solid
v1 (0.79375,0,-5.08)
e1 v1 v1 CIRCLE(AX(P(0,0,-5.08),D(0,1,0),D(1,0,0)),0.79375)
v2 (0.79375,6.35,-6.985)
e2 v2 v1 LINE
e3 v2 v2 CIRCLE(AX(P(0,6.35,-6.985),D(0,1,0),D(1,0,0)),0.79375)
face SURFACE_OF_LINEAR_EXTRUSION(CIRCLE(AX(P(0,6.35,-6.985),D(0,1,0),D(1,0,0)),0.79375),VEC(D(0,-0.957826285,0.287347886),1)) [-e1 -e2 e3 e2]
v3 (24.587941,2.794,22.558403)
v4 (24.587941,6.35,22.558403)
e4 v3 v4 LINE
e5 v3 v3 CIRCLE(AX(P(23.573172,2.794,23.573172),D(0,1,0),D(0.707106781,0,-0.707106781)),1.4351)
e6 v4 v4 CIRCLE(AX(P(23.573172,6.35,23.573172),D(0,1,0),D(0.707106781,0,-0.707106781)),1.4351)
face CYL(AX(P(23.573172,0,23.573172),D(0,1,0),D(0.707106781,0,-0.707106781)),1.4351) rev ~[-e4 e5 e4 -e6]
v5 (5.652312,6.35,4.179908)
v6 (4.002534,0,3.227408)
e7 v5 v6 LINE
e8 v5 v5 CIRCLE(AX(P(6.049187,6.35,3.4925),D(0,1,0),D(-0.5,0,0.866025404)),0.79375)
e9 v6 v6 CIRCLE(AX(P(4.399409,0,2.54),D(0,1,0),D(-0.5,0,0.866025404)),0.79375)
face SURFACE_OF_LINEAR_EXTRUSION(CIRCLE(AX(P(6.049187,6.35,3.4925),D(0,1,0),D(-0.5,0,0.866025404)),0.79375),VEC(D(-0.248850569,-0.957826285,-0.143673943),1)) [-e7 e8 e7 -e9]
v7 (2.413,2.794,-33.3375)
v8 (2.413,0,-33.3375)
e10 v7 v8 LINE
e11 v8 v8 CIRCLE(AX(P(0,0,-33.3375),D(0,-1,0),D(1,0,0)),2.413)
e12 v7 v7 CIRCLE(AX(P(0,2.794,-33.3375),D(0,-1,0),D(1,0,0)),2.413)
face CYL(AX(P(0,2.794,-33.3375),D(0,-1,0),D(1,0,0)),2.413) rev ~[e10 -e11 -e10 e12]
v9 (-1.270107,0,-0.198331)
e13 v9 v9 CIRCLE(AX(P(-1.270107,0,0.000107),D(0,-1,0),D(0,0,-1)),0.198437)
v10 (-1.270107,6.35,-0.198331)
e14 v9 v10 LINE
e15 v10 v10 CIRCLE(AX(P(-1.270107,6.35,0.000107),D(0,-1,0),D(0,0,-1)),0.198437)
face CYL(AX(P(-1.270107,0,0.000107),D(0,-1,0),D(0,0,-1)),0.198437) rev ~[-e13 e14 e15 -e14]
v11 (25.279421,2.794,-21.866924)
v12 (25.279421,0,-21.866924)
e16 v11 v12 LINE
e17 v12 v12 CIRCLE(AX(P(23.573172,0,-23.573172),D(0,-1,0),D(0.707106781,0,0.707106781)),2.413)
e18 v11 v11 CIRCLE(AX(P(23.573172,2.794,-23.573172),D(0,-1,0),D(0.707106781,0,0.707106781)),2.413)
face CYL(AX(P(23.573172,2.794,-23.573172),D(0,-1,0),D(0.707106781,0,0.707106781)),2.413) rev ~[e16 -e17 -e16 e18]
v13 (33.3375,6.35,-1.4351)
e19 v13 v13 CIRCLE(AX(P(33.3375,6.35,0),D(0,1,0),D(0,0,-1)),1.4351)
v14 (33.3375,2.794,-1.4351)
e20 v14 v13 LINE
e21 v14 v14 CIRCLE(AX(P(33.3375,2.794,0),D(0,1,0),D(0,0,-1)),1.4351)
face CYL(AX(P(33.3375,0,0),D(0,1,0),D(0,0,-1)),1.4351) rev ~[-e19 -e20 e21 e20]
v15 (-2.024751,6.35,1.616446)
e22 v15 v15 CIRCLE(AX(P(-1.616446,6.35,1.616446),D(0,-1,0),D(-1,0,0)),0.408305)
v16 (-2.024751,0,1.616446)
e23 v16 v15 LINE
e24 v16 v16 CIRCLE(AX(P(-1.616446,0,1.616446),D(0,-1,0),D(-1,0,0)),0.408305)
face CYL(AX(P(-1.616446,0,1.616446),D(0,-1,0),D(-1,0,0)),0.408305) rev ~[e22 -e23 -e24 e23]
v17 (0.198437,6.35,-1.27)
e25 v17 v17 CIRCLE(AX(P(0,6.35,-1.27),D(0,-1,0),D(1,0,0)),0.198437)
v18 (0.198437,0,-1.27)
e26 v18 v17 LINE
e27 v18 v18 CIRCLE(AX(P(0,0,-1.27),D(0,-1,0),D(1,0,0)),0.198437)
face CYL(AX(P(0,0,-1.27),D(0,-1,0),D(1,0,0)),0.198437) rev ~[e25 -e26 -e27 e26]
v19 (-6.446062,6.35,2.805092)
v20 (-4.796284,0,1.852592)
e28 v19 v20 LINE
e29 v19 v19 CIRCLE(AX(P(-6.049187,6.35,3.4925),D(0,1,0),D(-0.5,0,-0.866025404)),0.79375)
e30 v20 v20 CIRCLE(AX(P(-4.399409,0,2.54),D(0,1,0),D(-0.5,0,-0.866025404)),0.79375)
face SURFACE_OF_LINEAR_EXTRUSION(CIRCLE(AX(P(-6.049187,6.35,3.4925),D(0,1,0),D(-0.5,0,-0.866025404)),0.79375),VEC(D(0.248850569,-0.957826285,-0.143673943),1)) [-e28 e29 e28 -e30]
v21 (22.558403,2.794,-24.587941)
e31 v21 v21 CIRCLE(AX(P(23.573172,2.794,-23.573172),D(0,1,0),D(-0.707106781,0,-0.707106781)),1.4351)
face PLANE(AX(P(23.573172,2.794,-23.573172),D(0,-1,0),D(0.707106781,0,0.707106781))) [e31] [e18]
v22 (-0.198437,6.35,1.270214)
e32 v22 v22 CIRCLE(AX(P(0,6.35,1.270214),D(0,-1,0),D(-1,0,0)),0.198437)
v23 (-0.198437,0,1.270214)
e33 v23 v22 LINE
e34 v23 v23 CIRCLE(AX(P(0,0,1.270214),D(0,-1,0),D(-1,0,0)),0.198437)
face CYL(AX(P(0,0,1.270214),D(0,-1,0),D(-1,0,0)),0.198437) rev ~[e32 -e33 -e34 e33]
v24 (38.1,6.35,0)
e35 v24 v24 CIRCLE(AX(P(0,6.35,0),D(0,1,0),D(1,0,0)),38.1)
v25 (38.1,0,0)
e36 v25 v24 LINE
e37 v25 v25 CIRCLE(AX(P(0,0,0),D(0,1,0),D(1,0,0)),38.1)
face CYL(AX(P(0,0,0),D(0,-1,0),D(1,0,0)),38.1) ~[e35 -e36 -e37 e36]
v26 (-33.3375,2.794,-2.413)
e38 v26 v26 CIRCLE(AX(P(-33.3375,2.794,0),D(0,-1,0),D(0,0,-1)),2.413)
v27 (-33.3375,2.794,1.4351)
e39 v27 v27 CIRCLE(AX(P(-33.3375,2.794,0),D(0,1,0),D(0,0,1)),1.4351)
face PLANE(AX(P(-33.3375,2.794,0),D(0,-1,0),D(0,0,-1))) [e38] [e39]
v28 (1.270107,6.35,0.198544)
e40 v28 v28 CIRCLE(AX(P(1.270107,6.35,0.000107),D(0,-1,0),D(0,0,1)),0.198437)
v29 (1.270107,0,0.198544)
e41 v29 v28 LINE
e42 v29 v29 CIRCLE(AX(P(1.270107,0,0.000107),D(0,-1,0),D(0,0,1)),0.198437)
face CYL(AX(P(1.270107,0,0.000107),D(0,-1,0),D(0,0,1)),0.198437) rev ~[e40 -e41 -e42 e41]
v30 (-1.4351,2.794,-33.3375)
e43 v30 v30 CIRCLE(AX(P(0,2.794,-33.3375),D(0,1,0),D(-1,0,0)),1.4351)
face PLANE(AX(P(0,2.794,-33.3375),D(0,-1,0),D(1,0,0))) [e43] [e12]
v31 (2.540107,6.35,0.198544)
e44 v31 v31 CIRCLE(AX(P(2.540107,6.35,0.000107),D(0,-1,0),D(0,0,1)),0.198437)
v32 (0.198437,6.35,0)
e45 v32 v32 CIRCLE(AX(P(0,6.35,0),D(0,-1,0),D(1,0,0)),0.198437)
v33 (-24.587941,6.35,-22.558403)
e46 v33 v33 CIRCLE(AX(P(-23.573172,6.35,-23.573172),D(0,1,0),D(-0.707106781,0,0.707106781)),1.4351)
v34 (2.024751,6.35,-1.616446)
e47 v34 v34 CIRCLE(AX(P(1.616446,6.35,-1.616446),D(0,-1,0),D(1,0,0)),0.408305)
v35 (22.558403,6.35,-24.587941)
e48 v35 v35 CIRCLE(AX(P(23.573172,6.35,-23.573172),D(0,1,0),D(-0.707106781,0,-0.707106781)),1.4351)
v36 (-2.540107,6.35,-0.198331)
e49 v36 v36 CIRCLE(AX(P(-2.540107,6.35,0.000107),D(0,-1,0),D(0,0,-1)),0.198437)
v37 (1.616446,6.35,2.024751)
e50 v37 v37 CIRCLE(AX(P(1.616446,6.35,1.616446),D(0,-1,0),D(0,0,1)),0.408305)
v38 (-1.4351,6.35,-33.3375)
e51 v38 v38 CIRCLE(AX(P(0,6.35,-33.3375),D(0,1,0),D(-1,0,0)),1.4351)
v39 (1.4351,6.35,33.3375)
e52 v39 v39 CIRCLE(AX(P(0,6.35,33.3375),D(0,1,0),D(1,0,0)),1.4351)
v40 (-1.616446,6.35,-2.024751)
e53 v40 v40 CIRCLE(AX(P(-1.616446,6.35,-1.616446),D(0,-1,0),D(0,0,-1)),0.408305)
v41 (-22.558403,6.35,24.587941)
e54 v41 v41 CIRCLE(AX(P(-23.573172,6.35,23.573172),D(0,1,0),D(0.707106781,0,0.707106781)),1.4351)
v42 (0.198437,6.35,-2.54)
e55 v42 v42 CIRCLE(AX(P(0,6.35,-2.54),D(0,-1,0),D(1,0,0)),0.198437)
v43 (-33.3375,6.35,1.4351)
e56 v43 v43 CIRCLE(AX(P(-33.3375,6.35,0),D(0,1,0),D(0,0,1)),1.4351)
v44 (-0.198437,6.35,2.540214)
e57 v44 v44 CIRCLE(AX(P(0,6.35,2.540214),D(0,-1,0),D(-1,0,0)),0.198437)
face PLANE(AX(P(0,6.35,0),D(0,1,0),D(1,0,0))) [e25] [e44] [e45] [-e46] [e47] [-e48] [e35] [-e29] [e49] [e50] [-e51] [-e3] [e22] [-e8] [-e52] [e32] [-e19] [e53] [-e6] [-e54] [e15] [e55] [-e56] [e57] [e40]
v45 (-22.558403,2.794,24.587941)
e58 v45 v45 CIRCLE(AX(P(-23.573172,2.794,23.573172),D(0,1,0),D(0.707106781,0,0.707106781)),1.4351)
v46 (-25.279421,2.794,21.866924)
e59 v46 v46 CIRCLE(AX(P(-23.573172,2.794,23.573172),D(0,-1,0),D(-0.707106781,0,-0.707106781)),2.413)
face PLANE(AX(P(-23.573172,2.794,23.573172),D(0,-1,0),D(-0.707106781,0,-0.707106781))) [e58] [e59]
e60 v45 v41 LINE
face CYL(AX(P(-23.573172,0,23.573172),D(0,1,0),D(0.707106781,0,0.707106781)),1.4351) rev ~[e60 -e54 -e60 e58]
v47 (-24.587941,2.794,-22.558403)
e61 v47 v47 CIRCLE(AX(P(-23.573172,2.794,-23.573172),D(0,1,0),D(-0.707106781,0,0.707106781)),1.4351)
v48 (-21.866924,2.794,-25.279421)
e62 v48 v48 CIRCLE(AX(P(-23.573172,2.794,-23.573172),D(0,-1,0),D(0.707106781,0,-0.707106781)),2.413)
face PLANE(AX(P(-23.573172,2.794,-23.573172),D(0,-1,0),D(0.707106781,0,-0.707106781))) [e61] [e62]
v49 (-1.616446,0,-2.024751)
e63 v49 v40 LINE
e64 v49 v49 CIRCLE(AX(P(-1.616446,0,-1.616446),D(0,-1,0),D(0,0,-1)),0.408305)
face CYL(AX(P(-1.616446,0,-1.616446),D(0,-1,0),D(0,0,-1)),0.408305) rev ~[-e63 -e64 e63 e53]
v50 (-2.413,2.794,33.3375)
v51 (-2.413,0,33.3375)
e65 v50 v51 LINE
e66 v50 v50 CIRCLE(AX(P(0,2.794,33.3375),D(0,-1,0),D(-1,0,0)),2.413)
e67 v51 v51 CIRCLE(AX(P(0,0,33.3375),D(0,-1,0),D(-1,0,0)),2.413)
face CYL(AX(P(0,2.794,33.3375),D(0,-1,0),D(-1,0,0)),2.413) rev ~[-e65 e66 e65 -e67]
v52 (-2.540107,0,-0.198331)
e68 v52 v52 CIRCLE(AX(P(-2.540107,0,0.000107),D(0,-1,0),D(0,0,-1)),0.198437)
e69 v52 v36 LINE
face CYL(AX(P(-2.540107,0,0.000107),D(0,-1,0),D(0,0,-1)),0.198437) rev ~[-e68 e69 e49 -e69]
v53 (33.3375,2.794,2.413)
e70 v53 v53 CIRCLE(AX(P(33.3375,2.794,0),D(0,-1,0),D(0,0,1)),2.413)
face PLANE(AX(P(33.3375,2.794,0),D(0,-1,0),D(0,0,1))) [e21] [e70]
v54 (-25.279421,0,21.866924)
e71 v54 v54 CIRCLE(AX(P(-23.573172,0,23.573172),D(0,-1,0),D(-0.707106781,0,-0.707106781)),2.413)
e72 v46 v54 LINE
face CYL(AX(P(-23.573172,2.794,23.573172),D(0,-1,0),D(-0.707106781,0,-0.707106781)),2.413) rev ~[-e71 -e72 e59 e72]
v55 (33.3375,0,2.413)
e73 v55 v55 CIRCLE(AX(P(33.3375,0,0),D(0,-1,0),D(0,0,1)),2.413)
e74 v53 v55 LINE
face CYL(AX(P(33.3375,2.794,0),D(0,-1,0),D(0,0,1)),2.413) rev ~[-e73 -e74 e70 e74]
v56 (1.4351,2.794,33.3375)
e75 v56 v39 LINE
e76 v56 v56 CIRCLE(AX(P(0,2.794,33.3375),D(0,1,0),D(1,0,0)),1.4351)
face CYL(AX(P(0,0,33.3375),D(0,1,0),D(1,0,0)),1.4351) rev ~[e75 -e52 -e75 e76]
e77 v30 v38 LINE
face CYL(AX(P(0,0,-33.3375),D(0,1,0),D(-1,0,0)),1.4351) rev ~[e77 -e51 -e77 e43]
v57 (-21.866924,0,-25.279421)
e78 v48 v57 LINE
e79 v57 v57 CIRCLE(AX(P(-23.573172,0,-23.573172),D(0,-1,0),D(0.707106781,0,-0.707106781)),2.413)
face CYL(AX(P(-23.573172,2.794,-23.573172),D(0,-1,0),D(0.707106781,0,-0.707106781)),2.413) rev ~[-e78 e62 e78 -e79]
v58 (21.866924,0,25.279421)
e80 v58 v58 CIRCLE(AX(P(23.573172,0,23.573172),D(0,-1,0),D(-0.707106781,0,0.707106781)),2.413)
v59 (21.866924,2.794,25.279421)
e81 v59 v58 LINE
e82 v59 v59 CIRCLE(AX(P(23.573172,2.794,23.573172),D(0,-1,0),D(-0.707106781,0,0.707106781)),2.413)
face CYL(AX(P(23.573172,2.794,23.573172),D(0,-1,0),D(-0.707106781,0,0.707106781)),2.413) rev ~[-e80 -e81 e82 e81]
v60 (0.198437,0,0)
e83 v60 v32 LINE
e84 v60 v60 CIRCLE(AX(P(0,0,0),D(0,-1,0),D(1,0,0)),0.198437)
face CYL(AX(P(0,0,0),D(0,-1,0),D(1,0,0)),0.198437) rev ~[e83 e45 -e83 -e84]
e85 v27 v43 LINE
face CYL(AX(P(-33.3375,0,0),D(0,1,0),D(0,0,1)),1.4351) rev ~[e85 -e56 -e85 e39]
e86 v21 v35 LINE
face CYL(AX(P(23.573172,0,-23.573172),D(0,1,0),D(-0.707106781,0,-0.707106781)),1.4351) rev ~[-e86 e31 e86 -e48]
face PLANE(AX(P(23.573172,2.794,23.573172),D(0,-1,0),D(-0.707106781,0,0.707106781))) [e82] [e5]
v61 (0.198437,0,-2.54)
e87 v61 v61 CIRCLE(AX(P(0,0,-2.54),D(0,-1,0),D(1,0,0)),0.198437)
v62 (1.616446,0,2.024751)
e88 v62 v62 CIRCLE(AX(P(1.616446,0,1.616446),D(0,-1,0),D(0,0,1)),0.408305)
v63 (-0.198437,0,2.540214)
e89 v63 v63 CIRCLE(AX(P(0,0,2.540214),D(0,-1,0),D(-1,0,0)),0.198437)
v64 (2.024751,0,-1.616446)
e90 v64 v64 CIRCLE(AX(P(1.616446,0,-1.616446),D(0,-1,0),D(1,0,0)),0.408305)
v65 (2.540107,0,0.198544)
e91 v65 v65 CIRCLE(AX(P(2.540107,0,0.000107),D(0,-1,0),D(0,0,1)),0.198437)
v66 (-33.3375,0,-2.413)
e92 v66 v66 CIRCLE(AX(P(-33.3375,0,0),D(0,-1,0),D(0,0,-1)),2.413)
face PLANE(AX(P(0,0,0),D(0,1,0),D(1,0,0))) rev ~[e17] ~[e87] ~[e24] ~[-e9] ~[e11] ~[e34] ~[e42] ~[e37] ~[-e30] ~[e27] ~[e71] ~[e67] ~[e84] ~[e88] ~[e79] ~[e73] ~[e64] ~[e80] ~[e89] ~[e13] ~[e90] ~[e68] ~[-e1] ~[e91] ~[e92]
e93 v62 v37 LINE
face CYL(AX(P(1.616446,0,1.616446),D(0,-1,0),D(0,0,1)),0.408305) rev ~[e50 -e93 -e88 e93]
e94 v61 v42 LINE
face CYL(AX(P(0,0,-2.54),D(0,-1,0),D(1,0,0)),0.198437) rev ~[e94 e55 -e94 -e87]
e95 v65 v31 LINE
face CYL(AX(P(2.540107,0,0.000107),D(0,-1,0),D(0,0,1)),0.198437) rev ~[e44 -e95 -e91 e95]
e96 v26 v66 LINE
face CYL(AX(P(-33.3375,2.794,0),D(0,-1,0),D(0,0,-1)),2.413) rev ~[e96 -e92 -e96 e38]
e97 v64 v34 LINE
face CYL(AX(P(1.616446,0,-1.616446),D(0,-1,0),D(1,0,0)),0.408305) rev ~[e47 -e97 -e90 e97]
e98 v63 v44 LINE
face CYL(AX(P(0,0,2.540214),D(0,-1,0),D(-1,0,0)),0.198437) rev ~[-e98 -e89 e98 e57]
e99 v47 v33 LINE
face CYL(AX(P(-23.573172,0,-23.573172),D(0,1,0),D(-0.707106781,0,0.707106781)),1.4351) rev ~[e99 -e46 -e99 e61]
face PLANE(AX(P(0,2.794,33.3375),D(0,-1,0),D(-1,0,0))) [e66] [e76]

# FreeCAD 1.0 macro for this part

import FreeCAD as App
import Part
import Sketcher
Q = App.Units.Quantity

doc = App.newDocument("Part")
params = doc.addObject("Spreadsheet::Sheet", "Params")
for row, (alias, value) in enumerate([
    ("sketch1_diameter", "3 in"),
    ("pad1_length", "0.25 in"),
    ("sketch2_diameter", "0.113 in"),
    ("hole_diameter", "0.113 in"),
    ("hole_cbore_diameter", "0.19 in"),
    ("hole_cbore_depth", "0.11 in"),
    ("sketch3_diameter", "0.015625 in"),
    ("sketch4_diameter", "0.015625 in"),
    ("sketch6_diameter", "0.0625 in"),
], start=1):
    params.set(f"A{row}", alias)
    params.set(f"B{row}", "=" + value)
    params.setAlias(f"B{row}", alias)

body = doc.addObject("PartDesign::Body", "Body")

sketch1 = body.newObject("Sketcher::SketchObject", "Sketch")
sketch1.AttachmentSupport = (doc.getObject("XZ_Plane"), [""])
sketch1.MapMode = "FlatFace"
sketch1.addGeometry(Part.Circle(App.Vector(0, 0, 0), App.Vector(0, 0, 1), 38), False)
sketch1.addConstraint(Sketcher.Constraint("Coincident", 0, 3, -1, 1))
sketch1.addConstraint(Sketcher.Constraint("Diameter", 0, Q("3 in")))
sketch1.setExpression("Constraints[1]", "Params.sketch1_diameter")
pad1 = body.newObject("PartDesign::Pad", "Pad")
pad1.Profile = sketch1
pad1.setExpression("Length", "Params.pad1_length")
pad1.Reversed = True

sketch2 = body.newObject("Sketcher::SketchObject", "Sketch001")
sketch2.AttachmentSupport = (doc.getObject("XZ_Plane"), [""])
sketch2.MapMode = "FlatFace"
sketch2.addGeometry(Part.Circle(App.Vector(0, 33.3, 0), App.Vector(0, 0, 1), 1.4), False)
sketch2.addConstraint(Sketcher.Constraint("PointOnObject", 0, 3, -2))
sketch2.addConstraint(Sketcher.Constraint("Diameter", 0, Q("0.113 in")))
sketch2.addConstraint(Sketcher.Constraint("DistanceY", -1, 1, 0, 3, Q("1.3125 in")))
sketch2.setExpression("Constraints[1]", "Params.sketch2_diameter")
doc.recompute()
hole = body.newObject("PartDesign::Hole", "Hole")
hole.Profile = sketch2
hole.ThreadType = "None"
hole.setExpression("Diameter", "Params.hole_diameter")
hole.DepthType = "ThroughAll"
hole.HoleCutType = "Counterbore"
hole.setExpression("HoleCutDiameter", "Params.hole_cbore_diameter")
hole.setExpression("HoleCutDepth", "Params.hole_cbore_depth")
doc.recompute()

polarpattern = body.newObject("PartDesign::PolarPattern", "PolarPattern")
polarpattern.Originals = [hole]
polarpattern.Axis = (doc.getObject("Y_Axis"), [""])
polarpattern.Angle = 360
polarpattern.Occurrences = 8
body.Tip = polarpattern

sketch3 = body.newObject("Sketcher::SketchObject", "Sketch002")
sketch3.AttachmentSupport = (doc.getObject("XZ_Plane"), [""])
sketch3.MapMode = "FlatFace"
sketch3.addGeometry(Part.Circle(App.Vector(0, -2.54, 0), App.Vector(0, 0, 1), 0.2), False)
sketch3.addGeometry(Part.Circle(App.Vector(0, -1.27, 0), App.Vector(0, 0, 1), 0.2), False)
sketch3.addConstraint(Sketcher.Constraint("Equal", 0, 1))
sketch3.addConstraint(Sketcher.Constraint("PointOnObject", 0, 3, -2))
sketch3.addConstraint(Sketcher.Constraint("PointOnObject", 1, 3, -2))
sketch3.addConstraint(Sketcher.Constraint("Diameter", 0, Q("0.015625 in")))
sketch3.addConstraint(Sketcher.Constraint("DistanceY", 0, 3, -1, 1, Q("0.1 in")))
sketch3.addConstraint(Sketcher.Constraint("DistanceY", 1, 3, -1, 1, Q("0.05 in")))
sketch3.setExpression("Constraints[3]", "Params.sketch3_diameter")
pocket1 = body.newObject("PartDesign::Pocket", "Pocket")
pocket1.Profile = sketch3
pocket1.Type = "ThroughAll"
doc.recompute()

datumline = body.newObject("PartDesign::Line", "DatumLine")
datumline.Placement = App.Placement(App.Vector(0, 0, 0.000107), App.Rotation(App.Vector(0, 0, 1), App.Vector(0, 1, 0)))
polarpattern2 = body.newObject("PartDesign::PolarPattern", "PolarPattern001")
polarpattern2.Originals = [pocket1]
polarpattern2.Axis = (datumline, [""])
polarpattern2.Angle = 360
polarpattern2.Occurrences = 4
body.Tip = polarpattern2

sketch4 = body.newObject("Sketcher::SketchObject", "Sketch003")
sketch4.AttachmentSupport = (doc.getObject("XZ_Plane"), [""])
sketch4.MapMode = "FlatFace"
sketch4.addGeometry(Part.Circle(App.Vector(0, 0, 0), App.Vector(0, 0, 1), 0.2), False)
sketch4.addConstraint(Sketcher.Constraint("Coincident", 0, 3, -1, 1))
sketch4.addConstraint(Sketcher.Constraint("Diameter", 0, Q("0.015625 in")))
sketch4.setExpression("Constraints[1]", "Params.sketch4_diameter")
pocket2 = body.newObject("PartDesign::Pocket", "Pocket001")
pocket2.Profile = sketch4
pocket2.Type = "ThroughAll"

sketch5 = body.newObject("Sketcher::SketchObject", "Sketch004")
sketch5.AttachmentSupport = (doc.getObject("XZ_Plane"), [""])
sketch5.MapMode = "FlatFace"
sketch5.addGeometry(Part.Circle(App.Vector(1.62, -1.62, 0), App.Vector(0, 0, 1), 0.41), False)
sketch5.addConstraint(Sketcher.Constraint("Diameter", 0, Q("0.81661 mm")))
sketch5.addConstraint(Sketcher.Constraint("DistanceX", -1, 1, 0, 3, Q("1.616446 mm")))
sketch5.addConstraint(Sketcher.Constraint("DistanceY", 0, 3, -1, 1, Q("1.616446 mm")))
pocket3 = body.newObject("PartDesign::Pocket", "Pocket002")
pocket3.Profile = sketch5
pocket3.Type = "ThroughAll"
doc.recompute()

polarpattern3 = body.newObject("PartDesign::PolarPattern", "PolarPattern002")
polarpattern3.Originals = [pocket3]
polarpattern3.Axis = (doc.getObject("Y_Axis"), [""])
polarpattern3.Angle = 360
polarpattern3.Occurrences = 4
body.Tip = polarpattern3

sketch6 = body.newObject("Sketcher::SketchObject", "Sketch005")
sketch6.AttachmentSupport = (doc.getObject("XZ_Plane"), [""])
sketch6.MapMode = "FlatFace"
sketch6.AttachmentOffset = App.Placement(App.Vector(0, 0, -0.25 * 25.4), App.Rotation())
sketch6.addGeometry(Part.Circle(App.Vector(0, -7, 0), App.Vector(0, 0, 1), 0.8), False)
sketch6.addConstraint(Sketcher.Constraint("PointOnObject", 0, 3, -2))
sketch6.addConstraint(Sketcher.Constraint("Diameter", 0, Q("0.0625 in")))
sketch6.addConstraint(Sketcher.Constraint("DistanceY", 0, 3, -1, 1, Q("0.275 in")))
sketch6.setExpression("Constraints[1]", "Params.sketch6_diameter")

sketch7 = body.newObject("Sketcher::SketchObject", "Sketch006")
sketch7.Placement = App.Placement(App.Vector(0, -1.398165, -4.66055), App.Rotation(App.Vector(0, 0.957826285, -0.287347886), App.Vector(1, 0, 0), App.Vector(0, -0.287347886, -0.957826285), "ZXY"))
sketch7.addGeometry(Part.LineSegment(App.Vector(8, 0, 0), App.Vector(1, 0, 0)), False)
sketch7.addConstraint(Sketcher.Constraint("Horizontal", 0))
sketch7.addConstraint(Sketcher.Constraint("PointOnObject", 0, 1, -1))
sketch7.addConstraint(Sketcher.Constraint("DistanceX", 0, 2, 0, 1, Q("6.629595 mm")))
sketch7.addConstraint(Sketcher.Constraint("DistanceX", -1, 1, 0, 1, Q("8.089322 mm")))
doc.recompute()

subtractivepipe = body.newObject("PartDesign::SubtractivePipe", "SubtractivePipe")
subtractivepipe.Profile = sketch6
subtractivepipe.Spine = (sketch7, ["Edge1"])
doc.recompute()

polarpattern4 = body.newObject("PartDesign::PolarPattern", "PolarPattern003")
polarpattern4.Originals = [subtractivepipe]
polarpattern4.Axis = (doc.getObject("Y_Axis"), [""])
polarpattern4.Angle = 360
polarpattern4.Occurrences = 3
body.Tip = polarpattern4

doc.recompute()
